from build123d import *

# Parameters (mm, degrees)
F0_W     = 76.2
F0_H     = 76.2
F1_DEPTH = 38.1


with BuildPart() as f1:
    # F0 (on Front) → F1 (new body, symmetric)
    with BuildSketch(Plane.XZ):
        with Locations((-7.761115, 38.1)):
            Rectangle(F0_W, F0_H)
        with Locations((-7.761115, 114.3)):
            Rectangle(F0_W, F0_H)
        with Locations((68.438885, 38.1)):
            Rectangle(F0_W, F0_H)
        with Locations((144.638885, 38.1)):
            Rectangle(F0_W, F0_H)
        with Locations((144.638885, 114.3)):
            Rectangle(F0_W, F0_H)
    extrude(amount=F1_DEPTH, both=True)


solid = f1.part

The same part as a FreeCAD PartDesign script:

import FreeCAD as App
import Part
import Sketcher
from FreeCAD import Vector
Q = App.Units.Quantity

doc = App.newDocument("Part")
params = doc.addObject("Spreadsheet::Sheet", "Params")
for row, (alias, value) in enumerate([
    ("sketch1_width", "9 in"),
    ("sketch1_height", "6 in"),
    ("pad1_length", "3 in"),
], start=1):
    params.set(f"A{row}", alias)
    params.set(f"B{row}", "=" + value)
    params.setAlias(f"B{row}", alias)

body = doc.addObject("PartDesign::Body", "Body")

# Sketch on XZ plane
sketch1 = body.newObject("Sketcher::SketchObject", "Sketch")
sketch1.AttachmentSupport = (doc.getObject("XZ_Plane"), [""])
sketch1.MapMode = "FlatFace"
sketch1.addGeometry(Part.LineSegment(Vector(-45.861115, 0, 0), Vector(182.738885, 0, 0)), False)
sketch1.addGeometry(Part.LineSegment(Vector(182.738885, 0, 0), Vector(182.738885, 152.4, 0)), False)
sketch1.addGeometry(Part.LineSegment(Vector(182.738885, 152.4, 0), Vector(106.538885, 152.4, 0)), False)
sketch1.addGeometry(Part.LineSegment(Vector(106.538885, 152.4, 0), Vector(106.538885, 76.2, 0)), False)
sketch1.addGeometry(Part.LineSegment(Vector(106.538885, 76.2, 0), Vector(30.338885, 76.2, 0)), False)
sketch1.addGeometry(Part.LineSegment(Vector(30.338885, 76.2, 0), Vector(30.338885, 152.4, 0)), False)
sketch1.addGeometry(Part.LineSegment(Vector(30.338885, 152.4, 0), Vector(-45.861115, 152.4, 0)), False)
sketch1.addGeometry(Part.LineSegment(Vector(-45.861115, 152.4, 0), Vector(-45.861115, 0, 0)), False)
sketch1.addConstraint(Sketcher.Constraint("Coincident", 0, 2, 1, 1))
sketch1.addConstraint(Sketcher.Constraint("Coincident", 1, 2, 2, 1))
sketch1.addConstraint(Sketcher.Constraint("Coincident", 2, 2, 3, 1))
sketch1.addConstraint(Sketcher.Constraint("Coincident", 3, 2, 4, 1))
sketch1.addConstraint(Sketcher.Constraint("Coincident", 4, 2, 5, 1))
sketch1.addConstraint(Sketcher.Constraint("Coincident", 5, 2, 6, 1))
sketch1.addConstraint(Sketcher.Constraint("Coincident", 6, 2, 7, 1))
sketch1.addConstraint(Sketcher.Constraint("Coincident", 7, 2, 0, 1))
sketch1.addConstraint(Sketcher.Constraint("Horizontal", 0))
sketch1.addConstraint(Sketcher.Constraint("Vertical", 1))
sketch1.addConstraint(Sketcher.Constraint("Horizontal", 2))
sketch1.addConstraint(Sketcher.Constraint("Vertical", 3))
sketch1.addConstraint(Sketcher.Constraint("Horizontal", 4))
sketch1.addConstraint(Sketcher.Constraint("Vertical", 5))
sketch1.addConstraint(Sketcher.Constraint("Horizontal", 6))
sketch1.addConstraint(Sketcher.Constraint("Vertical", 7))
sketch1.addConstraint(Sketcher.Constraint("PointOnObject", 0, 2, -1))
sketch1.addConstraint(Sketcher.Constraint("Horizontal", 2, 2, 5, 2))
sketch1.addConstraint(Sketcher.Constraint("Equal", 2, 4))
sketch1.addConstraint(Sketcher.Constraint("Equal", 4, 6))
sketch1.addConstraint(Sketcher.Constraint("Equal", 6, 3))
sketch1.addConstraint(Sketcher.Constraint("DistanceX", 0, 1, 0, 2, Q("9 in")))
sketch1.addConstraint(Sketcher.Constraint("DistanceY", 1, 1, 1, 2, Q("6 in")))
sketch1.addConstraint(Sketcher.Constraint("DistanceX", -1, 1, 0, 2, Q("182.738885 mm")))
sketch1.setExpression("Constraints[21]", "Params.sketch1_width")
sketch1.setExpression("Constraints[22]", "Params.sketch1_height")
pad1 = body.newObject("PartDesign::Pad", "Pad")
pad1.Profile = sketch1
pad1.setExpression("Length", "Params.pad1_length")
pad1.Midplane = True

doc.recompute()
